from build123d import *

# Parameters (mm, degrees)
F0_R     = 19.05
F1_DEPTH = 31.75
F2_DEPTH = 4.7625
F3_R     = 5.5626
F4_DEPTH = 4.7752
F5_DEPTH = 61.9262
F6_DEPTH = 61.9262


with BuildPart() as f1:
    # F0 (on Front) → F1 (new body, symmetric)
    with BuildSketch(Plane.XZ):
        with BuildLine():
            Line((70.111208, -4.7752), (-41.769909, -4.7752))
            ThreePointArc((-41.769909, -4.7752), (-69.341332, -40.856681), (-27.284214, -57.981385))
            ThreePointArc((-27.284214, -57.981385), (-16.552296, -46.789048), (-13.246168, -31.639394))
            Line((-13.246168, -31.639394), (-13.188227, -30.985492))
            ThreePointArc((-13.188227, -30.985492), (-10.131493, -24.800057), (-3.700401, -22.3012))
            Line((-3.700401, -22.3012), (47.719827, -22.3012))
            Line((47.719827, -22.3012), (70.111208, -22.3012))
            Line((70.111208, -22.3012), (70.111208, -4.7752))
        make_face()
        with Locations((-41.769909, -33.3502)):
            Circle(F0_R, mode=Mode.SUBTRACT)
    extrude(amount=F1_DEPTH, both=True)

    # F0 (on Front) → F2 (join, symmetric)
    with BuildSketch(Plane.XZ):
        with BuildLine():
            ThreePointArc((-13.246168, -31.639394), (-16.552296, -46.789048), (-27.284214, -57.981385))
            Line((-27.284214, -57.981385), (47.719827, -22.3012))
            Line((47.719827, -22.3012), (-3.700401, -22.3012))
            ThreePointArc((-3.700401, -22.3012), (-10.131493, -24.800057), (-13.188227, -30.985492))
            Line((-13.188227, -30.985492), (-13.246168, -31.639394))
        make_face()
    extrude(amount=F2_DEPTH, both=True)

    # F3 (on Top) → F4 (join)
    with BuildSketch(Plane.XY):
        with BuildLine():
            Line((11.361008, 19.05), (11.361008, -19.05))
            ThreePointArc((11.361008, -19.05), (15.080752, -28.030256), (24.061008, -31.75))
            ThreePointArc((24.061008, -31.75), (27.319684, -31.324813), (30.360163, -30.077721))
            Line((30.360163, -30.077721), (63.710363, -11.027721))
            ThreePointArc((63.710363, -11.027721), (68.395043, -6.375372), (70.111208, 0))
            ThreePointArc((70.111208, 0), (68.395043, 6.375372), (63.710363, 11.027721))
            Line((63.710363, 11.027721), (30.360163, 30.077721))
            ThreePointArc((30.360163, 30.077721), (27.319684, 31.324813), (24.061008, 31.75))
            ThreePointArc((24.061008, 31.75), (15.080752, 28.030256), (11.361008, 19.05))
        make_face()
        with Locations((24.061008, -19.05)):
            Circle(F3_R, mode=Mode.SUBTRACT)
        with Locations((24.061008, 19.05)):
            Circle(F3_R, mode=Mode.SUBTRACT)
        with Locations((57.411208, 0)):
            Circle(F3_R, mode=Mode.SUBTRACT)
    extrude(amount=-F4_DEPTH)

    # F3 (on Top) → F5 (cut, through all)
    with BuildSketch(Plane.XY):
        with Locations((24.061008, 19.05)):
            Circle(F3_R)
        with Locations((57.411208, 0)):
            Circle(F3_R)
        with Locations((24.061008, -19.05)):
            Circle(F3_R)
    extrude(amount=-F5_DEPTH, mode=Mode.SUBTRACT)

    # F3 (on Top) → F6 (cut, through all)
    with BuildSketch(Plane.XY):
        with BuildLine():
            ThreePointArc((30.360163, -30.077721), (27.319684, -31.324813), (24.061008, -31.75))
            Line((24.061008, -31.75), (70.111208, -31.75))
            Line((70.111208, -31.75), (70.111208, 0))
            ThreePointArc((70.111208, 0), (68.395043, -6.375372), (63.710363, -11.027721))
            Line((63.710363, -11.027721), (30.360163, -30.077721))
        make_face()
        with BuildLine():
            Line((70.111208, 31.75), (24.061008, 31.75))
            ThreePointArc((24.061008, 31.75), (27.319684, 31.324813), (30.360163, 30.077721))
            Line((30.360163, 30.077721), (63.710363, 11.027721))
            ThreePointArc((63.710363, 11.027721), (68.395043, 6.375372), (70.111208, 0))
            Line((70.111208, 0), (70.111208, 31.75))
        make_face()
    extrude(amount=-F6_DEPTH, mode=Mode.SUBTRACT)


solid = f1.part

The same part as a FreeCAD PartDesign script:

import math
import FreeCAD as App
import Part
import Sketcher

V = App.Vector
Q = App.Units.Quantity

doc = App.newDocument("Part")
body = doc.addObject("PartDesign::Body", "Body")

# Sketch on XZ plane
sketch1 = doc.addObject("Sketcher::SketchObject", "Sketch")
body.addObject(sketch1)
sketch1.AttachmentSupport = (doc.XZ_Plane, [""])
sketch1.MapMode = "FlatFace"
sketch1.addGeometry(Part.LineSegment(V(70.1, -4.8, 0), V(-41.8, -4.8, 0)), False)
sketch1.addGeometry(Part.ArcOfCircle(Part.Circle(V(-41.8, -33.4, 0), V(0, 0, 1), 28.6), math.radians(90), math.radians(300)), False)
sketch1.addGeometry(Part.ArcOfCircle(Part.Circle(V(-41.8, -33.4, 0), V(0, 0, 1), 28.6), math.radians(-60), math.radians(3)), False)
sketch1.addGeometry(Part.LineSegment(V(-13.2, -31.6, 0), V(-13.2, -31, 0)), False)
sketch1.addGeometry(Part.ArcOfCircle(Part.Circle(V(-3.7, -31.8, 0), V(0, 0, 1), 9.5), math.radians(90), math.radians(175)), False)
sketch1.addGeometry(Part.LineSegment(V(-3.7, -22.3, 0), V(70.1, -22.3, 0)), False)
sketch1.addGeometry(Part.LineSegment(V(70.1, -22.3, 0), V(70.1, -4.8, 0)), False)
sketch1.addGeometry(Part.Circle(V(-41.8, -33.4, 0), V(0, 0, 1), 19.1), False)
sketch1.addConstraint(Sketcher.Constraint("Tangent", 0, 2, 1, 1))
sketch1.addConstraint(Sketcher.Constraint("Tangent", 1, 2, 2, 1))
sketch1.addConstraint(Sketcher.Constraint("Coincident", 2, 2, 3, 1))
sketch1.addConstraint(Sketcher.Constraint("Tangent", 3, 2, 4, 2))
sketch1.addConstraint(Sketcher.Constraint("Tangent", 4, 1, 5, 1))
sketch1.addConstraint(Sketcher.Constraint("Coincident", 5, 2, 6, 1))
sketch1.addConstraint(Sketcher.Constraint("Coincident", 6, 2, 0, 1))
sketch1.addConstraint(Sketcher.Constraint("Horizontal", 0))
sketch1.addConstraint(Sketcher.Constraint("Horizontal", 5))
sketch1.addConstraint(Sketcher.Constraint("Vertical", 6))
sketch1.addConstraint(Sketcher.Constraint("Coincident", 7, 3, 1, 3))
sketch1.addConstraint(Sketcher.Constraint("Equal", 1, 2))
sketch1.addConstraint(Sketcher.Constraint("Diameter", 7, Q("1.5 in")))
sketch1.addConstraint(Sketcher.Constraint("Radius", 1, Q("1.125 in")))
sketch1.addConstraint(Sketcher.Constraint("Radius", 4, Q("0.375 in")))
sketch1.addConstraint(Sketcher.Constraint("DistanceY", 6, 1, 6, 2, Q("0.69 in")))
sketch1.addConstraint(Sketcher.Constraint("DistanceY", 1, 3, -1, 1, Q("1.313 in")))
sketch1.addConstraint(Sketcher.Constraint("DistanceX", 5, 1, 5, 2, Q("73.811609 mm")))
sketch1.addConstraint(Sketcher.Constraint("DistanceX", 4, 3, -1, 1, Q("3.700401 mm")))
sketch1.addConstraint(Sketcher.Constraint("DistanceY", 2, 2, 3, 2, Q("0.653902 mm")))
sketch1.addConstraint(Sketcher.Constraint("DistanceX", 0, 2, 0, 1, Q("111.881117 mm")))
sketch1.addConstraint(Sketcher.Constraint("DistanceY", 1, 2, 2, 2, Q("26.341991 mm")))
pad1 = doc.addObject("PartDesign::Pad", "Pad")
body.addObject(pad1)
pad1.Profile = sketch1
pad1.Length = Q("2.5 in")
pad1.Midplane = True

# Sketch on XZ plane
sketch2 = doc.addObject("Sketcher::SketchObject", "Sketch001")
body.addObject(sketch2)
sketch2.AttachmentSupport = (doc.XZ_Plane, [""])
sketch2.MapMode = "FlatFace"
sketch2.addGeometry(Part.ArcOfCircle(Part.Circle(V(-41.8, -33.4, 0), V(0, 0, 1), 28.6), math.radians(-60), math.radians(3)), False)
sketch2.addGeometry(Part.LineSegment(V(-27.3, -58, 0), V(47.7, -22.3, 0)), False)
sketch2.addGeometry(Part.LineSegment(V(47.7, -22.3, 0), V(-3.7, -22.3, 0)), False)
sketch2.addGeometry(Part.ArcOfCircle(Part.Circle(V(-3.7, -31.8, 0), V(0, 0, 1), 9.5), math.radians(90), math.radians(175)), False)
sketch2.addGeometry(Part.LineSegment(V(-13.2, -31, 0), V(-13.2, -31.6, 0)), False)
sketch2.addConstraint(Sketcher.Constraint("Coincident", 0, 1, 1, 1))
sketch2.addConstraint(Sketcher.Constraint("Coincident", 1, 2, 2, 1))
sketch2.addConstraint(Sketcher.Constraint("Tangent", 2, 2, 3, 1))
sketch2.addConstraint(Sketcher.Constraint("Tangent", 3, 2, 4, 1))
sketch2.addConstraint(Sketcher.Constraint("Coincident", 4, 2, 0, 2))
sketch2.addConstraint(Sketcher.Constraint("Horizontal", 2))
sketch2.addConstraint(Sketcher.Constraint("Radius", 0, Q("1.125 in")))
sketch2.addConstraint(Sketcher.Constraint("Radius", 3, Q("0.375 in")))
sketch2.addConstraint(Sketcher.Constraint("DistanceY", 0, 3, 3, 3, Q("0.06 in")))
sketch2.addConstraint(Sketcher.Constraint("DistanceY", 0, 3, -1, 1, Q("1.313 in")))
sketch2.addConstraint(Sketcher.Constraint("DistanceX", 2, 2, 2, 1, Q("51.420228 mm")))
sketch2.addConstraint(Sketcher.Constraint("DistanceX", 3, 3, -1, 1, Q("3.700401 mm")))
sketch2.addConstraint(Sketcher.Constraint("DistanceY", 4, 2, 3, 2, Q("0.653902 mm")))
sketch2.addConstraint(Sketcher.Constraint("DistanceX", 0, 3, -1, 1, Q("41.769909 mm")))
sketch2.addConstraint(Sketcher.Constraint("DistanceX", 0, 1, 1, 2, Q("75.004041 mm")))
pad2 = doc.addObject("PartDesign::Pad", "Pad001")
body.addObject(pad2)
pad2.Profile = sketch2
pad2.Length = Q("0.375 in")
pad2.Midplane = True

# Sketch on XY plane
sketch3 = doc.addObject("Sketcher::SketchObject", "Sketch002")
body.addObject(sketch3)
sketch3.AttachmentSupport = (doc.XY_Plane, [""])
sketch3.MapMode = "FlatFace"
sketch3.addGeometry(Part.LineSegment(V(11.361008, 19.05, 0), V(11.361008, -19.05, 0)), False)
sketch3.addGeometry(Part.ArcOfCircle(Part.Circle(V(24.061008, -19.05, 0), V(0, 0, 1), 12.7), math.radians(-179.999998), math.radians(-90.000002)), False)
sketch3.addGeometry(Part.ArcOfCircle(Part.Circle(V(24.06101, -19.050013, 0), V(0, 0, 1), 12.699987), math.radians(-90.00001), math.radians(-60.264498)), False)
sketch3.addGeometry(Part.LineSegment(V(30.360163, -30.077721, 0), V(63.710363, -11.027721, 0)), False)
sketch3.addGeometry(Part.ArcOfCircle(Part.Circle(V(57.41121, -0.000001, 0), V(0, 0, 1), 12.699998), math.radians(-60.264526), math.radians(0.000002)), False)
sketch3.addGeometry(Part.ArcOfCircle(Part.Circle(V(57.41121, 0.000001, 0), V(0, 0, 1), 12.699998), math.radians(-0.000002), math.radians(60.264526)), False)
sketch3.addGeometry(Part.LineSegment(V(63.710363, 11.027721, 0), V(30.360163, 30.077721, 0)), False)
sketch3.addGeometry(Part.ArcOfCircle(Part.Circle(V(24.06101, 19.050013, 0), V(0, 0, 1), 12.699987), math.radians(60.264498), math.radians(90.00001)), False)
sketch3.addGeometry(Part.ArcOfCircle(Part.Circle(V(24.061008, 19.05, 0), V(0, 0, 1), 12.7), math.radians(90.000002), math.radians(179.999998)), False)
sketch3.addGeometry(Part.Circle(V(24.061008, -19.05, 0), V(0, 0, 1), 5.5626), False)
sketch3.addGeometry(Part.Circle(V(57.411208, 0, 0), V(0, 0, 1), 5.5626), False)
sketch3.addGeometry(Part.Circle(V(24.061008, 19.05, 0), V(0, 0, 1), 5.5626), False)
sketch3.addConstraint(Sketcher.Constraint("Tangent", 0, 2, 1, 1))
sketch3.addConstraint(Sketcher.Constraint("Tangent", 1, 2, 2, 1))
sketch3.addConstraint(Sketcher.Constraint("Tangent", 2, 2, 3, 1))
sketch3.addConstraint(Sketcher.Constraint("Tangent", 3, 2, 4, 1))
sketch3.addConstraint(Sketcher.Constraint("Tangent", 4, 2, 5, 1))
sketch3.addConstraint(Sketcher.Constraint("Tangent", 5, 2, 6, 1))
sketch3.addConstraint(Sketcher.Constraint("Tangent", 6, 2, 7, 1))
sketch3.addConstraint(Sketcher.Constraint("Tangent", 7, 2, 8, 1))
sketch3.addConstraint(Sketcher.Constraint("Tangent", 8, 2, 0, 1))
sketch3.addConstraint(Sketcher.Constraint("Vertical", 0))
sketch3.addConstraint(Sketcher.Constraint("Coincident", 9, 3, 1, 3))
sketch3.addConstraint(Sketcher.Constraint("Coincident", 10, 3, 4, 3))
sketch3.addConstraint(Sketcher.Constraint("Coincident", 11, 3, 8, 3))
sketch3.addConstraint(Sketcher.Constraint("Equal", 4, 5))
sketch3.addConstraint(Sketcher.Constraint("Equal", 2, 7))
sketch3.addConstraint(Sketcher.Constraint("Equal", 1, 8))
sketch3.addConstraint(Sketcher.Constraint("Equal", 9, 10))
sketch3.addConstraint(Sketcher.Constraint("Equal", 10, 11))
sketch3.addConstraint(Sketcher.Constraint("Symmetric", 3, 2, 5, 2, -1))
sketch3.addConstraint(Sketcher.Constraint("PointOnObject", 4, 2, -1))
sketch3.addConstraint(Sketcher.Constraint("Vertical", 11, 3, 1, 2))
sketch3.addConstraint(Sketcher.Constraint("Vertical", 1, 2, 7, 2))
sketch3.addConstraint(Sketcher.Constraint("Radius", 1, Q("0.5 in")))
sketch3.addConstraint(Sketcher.Constraint("Radius", 4, Q("0.4999999 in")))
sketch3.addConstraint(Sketcher.Constraint("Diameter", 9, Q("0.438 in")))
sketch3.addConstraint(Sketcher.Constraint("DistanceY", 0, 2, 0, 1, Q("1.5 in")))
sketch3.addConstraint(Sketcher.Constraint("DistanceY", 2, 2, 3, 2, Q("0.75 in")))
sketch3.addConstraint(Sketcher.Constraint("DistanceX", 1, 3, 4, 3, Q("1.3130001 in")))
sketch3.addConstraint(Sketcher.Constraint("DistanceX", -1, 1, 1, 3, Q("24.061008 mm")))
pad3 = doc.addObject("PartDesign::Pad", "Pad002")
body.addObject(pad3)
pad3.Profile = sketch3
pad3.Length = Q("0.188 in")
pad3.Reversed = True

# Sketch on XY plane
sketch4 = doc.addObject("Sketcher::SketchObject", "Sketch003")
body.addObject(sketch4)
sketch4.AttachmentSupport = (doc.XY_Plane, [""])
sketch4.MapMode = "FlatFace"
sketch4.addGeometry(Part.Circle(V(24, 19, 0), V(0, 0, 1), 6), False)
sketch4.addGeometry(Part.Circle(V(57, 0, 0), V(0, 0, 1), 6), False)
sketch4.addGeometry(Part.Circle(V(24, -19, 0), V(0, 0, 1), 6), False)
sketch4.addConstraint(Sketcher.Constraint("Equal", 0, 1))
sketch4.addConstraint(Sketcher.Constraint("Equal", 1, 2))
sketch4.addConstraint(Sketcher.Constraint("Symmetric", 0, 3, 2, 3, -1))
sketch4.addConstraint(Sketcher.Constraint("PointOnObject", 1, 3, -1))
sketch4.addConstraint(Sketcher.Constraint("Diameter", 0, Q("0.438 in")))
sketch4.addConstraint(Sketcher.Constraint("DistanceY", 2, 3, 0, 3, Q("1.5 in")))
sketch4.addConstraint(Sketcher.Constraint("DistanceX", 0, 3, 1, 3, Q("1.313 in")))
sketch4.addConstraint(Sketcher.Constraint("DistanceX", -1, 1, 0, 3, Q("24.061008 mm")))
pocket1 = doc.addObject("PartDesign::Pocket", "Pocket")
body.addObject(pocket1)
pocket1.Profile = sketch4
pocket1.Type = "ThroughAll"

# Sketch on XY plane
sketch5 = doc.addObject("Sketcher::SketchObject", "Sketch004")
body.addObject(sketch5)
sketch5.AttachmentSupport = (doc.XY_Plane, [""])
sketch5.MapMode = "FlatFace"
sketch5.addGeometry(Part.ArcOfCircle(Part.Circle(V(24.06101, -19.050013, 0), V(0, 0, 1), 12.699987), math.radians(-90.00001), math.radians(-60.264498)), False)
sketch5.addGeometry(Part.LineSegment(V(24.061008, -31.75, 0), V(70.111208, -31.75, 0)), False)
sketch5.addGeometry(Part.LineSegment(V(70.111208, -31.75, 0), V(70.111208, 0, 0)), False)
sketch5.addGeometry(Part.ArcOfCircle(Part.Circle(V(57.41121, -0.000001, 0), V(0, 0, 1), 12.699998), math.radians(-60.264526), math.radians(0.000002)), False)
sketch5.addGeometry(Part.LineSegment(V(63.710363, -11.027721, 0), V(30.360163, -30.077721, 0)), False)
sketch5.addGeometry(Part.LineSegment(V(70.111208, 31.75, 0), V(24.061008, 31.75, 0)), False)
sketch5.addGeometry(Part.ArcOfCircle(Part.Circle(V(24.06101, 19.050013, 0), V(0, 0, 1), 12.699987), math.radians(60.264498), math.radians(90.00001)), False)
sketch5.addGeometry(Part.LineSegment(V(30.360163, 30.077721, 0), V(63.710363, 11.027721, 0)), False)
sketch5.addGeometry(Part.ArcOfCircle(Part.Circle(V(57.41121, 0.000001, 0), V(0, 0, 1), 12.699998), math.radians(-0.000002), math.radians(60.264526)), False)
sketch5.addGeometry(Part.LineSegment(V(70.111208, 0, 0), V(70.111208, 31.75, 0)), False)
sketch5.addConstraint(Sketcher.Constraint("Coincident", 0, 1, 1, 1))
sketch5.addConstraint(Sketcher.Constraint("Coincident", 1, 2, 2, 1))
sketch5.addConstraint(Sketcher.Constraint("Coincident", 2, 2, 3, 2))
sketch5.addConstraint(Sketcher.Constraint("Coincident", 3, 1, 4, 1))
sketch5.addConstraint(Sketcher.Constraint("Coincident", 4, 2, 0, 2))
sketch5.addConstraint(Sketcher.Constraint("Coincident", 5, 2, 6, 2))
sketch5.addConstraint(Sketcher.Constraint("Coincident", 6, 1, 7, 1))
sketch5.addConstraint(Sketcher.Constraint("Coincident", 7, 2, 8, 2))
sketch5.addConstraint(Sketcher.Constraint("Coincident", 8, 1, 9, 1))
sketch5.addConstraint(Sketcher.Constraint("Coincident", 9, 2, 5, 1))
sketch5.addConstraint(Sketcher.Constraint("Horizontal", 1))
sketch5.addConstraint(Sketcher.Constraint("Vertical", 2))
sketch5.addConstraint(Sketcher.Constraint("Horizontal", 5))
sketch5.addConstraint(Sketcher.Constraint("Vertical", 9))
sketch5.addConstraint(Sketcher.Constraint("Coincident", 8, 3, 3, 3))
sketch5.addConstraint(Sketcher.Constraint("Coincident", 8, 1, 2, 2))
sketch5.addConstraint(Sketcher.Constraint("PointOnObject", 3, 3, -1))
sketch5.addConstraint(Sketcher.Constraint("PointOnObject", 2, 2, -1))
sketch5.addConstraint(Sketcher.Constraint("Radius", 3, Q("0.4999999 in")))
sketch5.addConstraint(Sketcher.Constraint("DistanceY", 2, 1, 2, 2, Q("1.25 in")))
sketch5.addConstraint(Sketcher.Constraint("DistanceY", 9, 1, 9, 2, Q("1.25 in")))
sketch5.addConstraint(Sketcher.Constraint("DistanceX", 1, 1, 1, 2, Q("1.813 in")))
sketch5.addConstraint(Sketcher.Constraint("DistanceX", 5, 2, 5, 1, Q("1.813 in")))
sketch5.addConstraint(Sketcher.Constraint("DistanceY", 4, 2, 3, 1, Q("0.75 in")))
sketch5.addConstraint(Sketcher.Constraint("DistanceY", 7, 2, 6, 1, Q("0.75 in")))
sketch5.addConstraint(Sketcher.Constraint("DistanceX", 0, 3, 3, 3, Q("1.313 in")))
sketch5.addConstraint(Sketcher.Constraint("DistanceX", 6, 3, 3, 3, Q("1.313 in")))
sketch5.addConstraint(Sketcher.Constraint("DistanceX", 4, 2, 3, 1, Q("1.313 in")))
sketch5.addConstraint(Sketcher.Constraint("DistanceX", 6, 1, 7, 2, Q("1.313 in")))
sketch5.addConstraint(Sketcher.Constraint("DistanceX", -1, 1, 0, 3, Q("24.06101 mm")))
sketch5.addConstraint(Sketcher.Constraint("DistanceY", 3, 1, -1, 1, Q("11.027721 mm")))
sketch5.addConstraint(Sketcher.Constraint("DistanceY", -1, 1, 6, 1, Q("30.077721 mm")))
pocket2 = doc.addObject("PartDesign::Pocket", "Pocket001")
body.addObject(pocket2)
pocket2.Profile = sketch5
pocket2.Type = "ThroughAll"

doc.recompute()
